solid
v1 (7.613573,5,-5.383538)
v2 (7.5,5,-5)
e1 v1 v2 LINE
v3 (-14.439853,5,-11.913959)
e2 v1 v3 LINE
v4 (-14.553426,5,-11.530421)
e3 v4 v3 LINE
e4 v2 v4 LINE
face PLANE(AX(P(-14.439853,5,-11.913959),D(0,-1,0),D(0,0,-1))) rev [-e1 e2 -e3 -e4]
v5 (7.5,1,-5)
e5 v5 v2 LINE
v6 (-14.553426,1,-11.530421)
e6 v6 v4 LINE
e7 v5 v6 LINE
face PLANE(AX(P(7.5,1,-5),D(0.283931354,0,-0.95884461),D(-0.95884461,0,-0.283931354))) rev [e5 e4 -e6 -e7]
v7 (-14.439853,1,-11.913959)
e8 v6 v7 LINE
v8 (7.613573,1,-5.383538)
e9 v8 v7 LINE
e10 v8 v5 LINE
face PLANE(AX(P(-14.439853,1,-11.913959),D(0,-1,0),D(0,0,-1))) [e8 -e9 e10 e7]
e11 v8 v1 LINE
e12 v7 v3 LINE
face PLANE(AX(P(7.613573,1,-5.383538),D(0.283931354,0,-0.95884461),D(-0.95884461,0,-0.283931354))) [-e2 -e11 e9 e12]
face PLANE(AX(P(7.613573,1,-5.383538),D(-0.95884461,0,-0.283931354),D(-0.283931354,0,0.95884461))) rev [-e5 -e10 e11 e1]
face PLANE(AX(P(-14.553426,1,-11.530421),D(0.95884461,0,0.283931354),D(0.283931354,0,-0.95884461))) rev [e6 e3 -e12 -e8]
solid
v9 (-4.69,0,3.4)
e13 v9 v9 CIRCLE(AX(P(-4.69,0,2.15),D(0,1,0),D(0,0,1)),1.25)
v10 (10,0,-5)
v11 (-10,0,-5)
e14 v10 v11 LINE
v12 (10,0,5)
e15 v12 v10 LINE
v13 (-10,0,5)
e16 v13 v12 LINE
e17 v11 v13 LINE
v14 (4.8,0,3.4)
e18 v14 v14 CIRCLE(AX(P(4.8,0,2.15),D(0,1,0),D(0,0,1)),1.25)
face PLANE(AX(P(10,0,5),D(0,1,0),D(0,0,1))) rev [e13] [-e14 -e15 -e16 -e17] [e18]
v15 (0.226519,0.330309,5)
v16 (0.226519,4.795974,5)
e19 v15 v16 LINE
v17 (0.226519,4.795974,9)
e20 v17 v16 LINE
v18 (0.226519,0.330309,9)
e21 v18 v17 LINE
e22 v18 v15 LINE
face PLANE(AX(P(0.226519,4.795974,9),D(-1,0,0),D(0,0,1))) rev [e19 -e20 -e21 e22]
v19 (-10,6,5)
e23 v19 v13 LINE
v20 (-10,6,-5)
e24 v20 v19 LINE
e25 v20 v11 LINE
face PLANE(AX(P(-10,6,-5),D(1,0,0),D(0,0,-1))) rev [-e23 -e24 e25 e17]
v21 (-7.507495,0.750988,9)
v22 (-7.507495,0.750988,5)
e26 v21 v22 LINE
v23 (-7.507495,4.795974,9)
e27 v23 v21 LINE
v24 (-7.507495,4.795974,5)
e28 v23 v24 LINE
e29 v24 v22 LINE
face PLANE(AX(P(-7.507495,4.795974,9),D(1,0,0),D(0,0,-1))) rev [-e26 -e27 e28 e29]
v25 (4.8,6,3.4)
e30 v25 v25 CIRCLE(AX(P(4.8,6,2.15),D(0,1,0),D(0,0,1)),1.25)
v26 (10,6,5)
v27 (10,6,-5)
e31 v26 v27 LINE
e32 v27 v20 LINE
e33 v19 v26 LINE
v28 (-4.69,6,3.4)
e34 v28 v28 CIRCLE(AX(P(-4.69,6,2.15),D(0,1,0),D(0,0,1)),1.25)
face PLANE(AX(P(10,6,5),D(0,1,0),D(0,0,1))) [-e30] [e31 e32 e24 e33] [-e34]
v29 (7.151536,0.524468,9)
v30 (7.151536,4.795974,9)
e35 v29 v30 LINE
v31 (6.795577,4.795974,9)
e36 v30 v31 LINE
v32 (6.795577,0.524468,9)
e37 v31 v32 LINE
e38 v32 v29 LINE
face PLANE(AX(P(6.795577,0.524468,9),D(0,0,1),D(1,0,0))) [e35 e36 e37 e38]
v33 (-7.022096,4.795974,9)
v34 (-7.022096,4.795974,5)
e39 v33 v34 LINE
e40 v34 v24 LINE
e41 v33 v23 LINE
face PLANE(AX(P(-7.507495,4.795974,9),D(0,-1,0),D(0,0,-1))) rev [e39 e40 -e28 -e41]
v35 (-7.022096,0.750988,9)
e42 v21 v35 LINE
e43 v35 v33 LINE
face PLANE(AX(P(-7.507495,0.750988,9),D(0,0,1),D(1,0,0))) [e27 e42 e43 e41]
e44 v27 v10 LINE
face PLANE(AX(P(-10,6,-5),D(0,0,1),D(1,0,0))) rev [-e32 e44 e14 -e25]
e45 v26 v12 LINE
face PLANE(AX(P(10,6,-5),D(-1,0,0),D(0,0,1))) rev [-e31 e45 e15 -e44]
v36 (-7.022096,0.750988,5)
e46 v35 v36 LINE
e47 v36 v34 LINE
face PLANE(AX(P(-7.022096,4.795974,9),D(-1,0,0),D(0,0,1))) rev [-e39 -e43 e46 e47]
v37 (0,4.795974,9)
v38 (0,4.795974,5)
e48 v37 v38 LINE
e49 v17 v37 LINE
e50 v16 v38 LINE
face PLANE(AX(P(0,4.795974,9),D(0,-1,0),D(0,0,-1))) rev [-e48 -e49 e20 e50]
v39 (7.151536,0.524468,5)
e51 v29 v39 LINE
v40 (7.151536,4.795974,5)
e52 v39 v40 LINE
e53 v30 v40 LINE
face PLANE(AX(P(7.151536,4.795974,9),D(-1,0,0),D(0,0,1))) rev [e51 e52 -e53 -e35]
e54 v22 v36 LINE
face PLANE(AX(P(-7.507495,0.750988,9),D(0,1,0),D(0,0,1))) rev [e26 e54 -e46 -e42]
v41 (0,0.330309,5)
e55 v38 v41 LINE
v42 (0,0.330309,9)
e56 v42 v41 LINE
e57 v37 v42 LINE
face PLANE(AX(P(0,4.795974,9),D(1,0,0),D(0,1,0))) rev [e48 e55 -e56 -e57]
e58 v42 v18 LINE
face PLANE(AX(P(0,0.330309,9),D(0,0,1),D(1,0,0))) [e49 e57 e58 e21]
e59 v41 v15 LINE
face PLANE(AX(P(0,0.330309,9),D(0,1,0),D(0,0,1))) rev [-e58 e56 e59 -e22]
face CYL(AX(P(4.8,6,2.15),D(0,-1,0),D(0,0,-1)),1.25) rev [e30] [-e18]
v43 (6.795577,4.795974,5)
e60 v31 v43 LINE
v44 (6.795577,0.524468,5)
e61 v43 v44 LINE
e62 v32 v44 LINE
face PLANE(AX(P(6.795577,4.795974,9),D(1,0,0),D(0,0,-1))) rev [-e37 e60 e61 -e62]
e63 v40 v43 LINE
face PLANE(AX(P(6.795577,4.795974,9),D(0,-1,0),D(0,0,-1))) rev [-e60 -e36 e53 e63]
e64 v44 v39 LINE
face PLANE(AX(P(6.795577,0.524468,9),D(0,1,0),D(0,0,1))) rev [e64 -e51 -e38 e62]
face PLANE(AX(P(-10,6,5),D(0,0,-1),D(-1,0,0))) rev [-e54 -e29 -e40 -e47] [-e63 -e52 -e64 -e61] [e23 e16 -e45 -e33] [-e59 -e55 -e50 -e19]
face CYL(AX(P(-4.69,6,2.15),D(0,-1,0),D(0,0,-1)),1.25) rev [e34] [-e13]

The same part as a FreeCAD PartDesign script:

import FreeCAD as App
import Part
import Sketcher

V = App.Vector


def add_polygon(sketch, points):
    """Adds a closed chain of lines whose ends are joined by coincident constraints."""
    first, n = sketch.GeometryCount, len(points)
    for a, b in zip(points, points[1:] + points[:1]):
        sketch.addGeometry(Part.LineSegment(App.Vector(*a, 0), App.Vector(*b, 0)), False)
    for i in range(n):
        sketch.addConstraint(Sketcher.Constraint("Coincident", first + i, 2, first + (i + 1) % n, 1))

doc = App.newDocument("Part")
body = doc.addObject("PartDesign::Body", "Body")

sketch1 = doc.addObject("Sketcher::SketchObject", "Sketch")
body.addObject(sketch1)
sketch1.AttachmentSupport = (doc.XZ_Plane, [""])
sketch1.MapMode = "FlatFace"
add_polygon(sketch1, [(-10, -5), (-10, 5), (10, 5), (10, -5)])
sketch1.addGeometry(Part.Circle(V(-4.7, 2.1, 0), V(0, 0, 1), 1.2), False)
sketch1.addGeometry(Part.Circle(V(4.8, 2.1, 0), V(0, 0, 1), 1.2), False)
sketch1.addConstraint(Sketcher.Constraint("Vertical", 0))
sketch1.addConstraint(Sketcher.Constraint("Horizontal", 1))
sketch1.addConstraint(Sketcher.Constraint("Vertical", 2))
sketch1.addConstraint(Sketcher.Constraint("Horizontal", 3))
sketch1.addConstraint(Sketcher.Constraint("Equal", 4, 5))
sketch1.addConstraint(Sketcher.Constraint("Symmetric", 0, 2, 2, 2, -1, 1))
sketch1.addConstraint(Sketcher.Constraint("Horizontal", 4, 3, 5, 3))
sketch1.addConstraint(Sketcher.Constraint("Diameter", 4, 2.5))
sketch1.addConstraint(Sketcher.Constraint("DistanceX", 1, 1, 1, 2, 20.0))
sketch1.addConstraint(Sketcher.Constraint("DistanceY", 0, 1, 0, 2, 10.0))
sketch1.addConstraint(Sketcher.Constraint("DistanceX", -1, 1, 5, 3, 4.8))
sketch1.addConstraint(Sketcher.Constraint("DistanceX", 4, 3, -1, 1, 4.69))
sketch1.addConstraint(Sketcher.Constraint("DistanceY", -1, 1, 4, 3, 2.15))
pad1 = doc.addObject("PartDesign::Pad", "Pad")
body.addObject(pad1)
pad1.Profile = sketch1
pad1.Length = 6
pad1.Reversed = True

sketch2 = doc.addObject("Sketcher::SketchObject", "Sketch001")
body.addObject(sketch2)
sketch2.AttachmentSupport = (doc.XY_Plane, [""])
sketch2.MapMode = "FlatFace"
sketch2.AttachmentOffset = App.Placement(V(0, 0, 5), App.Rotation())
add_polygon(sketch2, [(-7.51, 4.8), (-7.51, 0.75), (-7.02, 0.75), (-7.02, 4.8)])
add_polygon(sketch2, [(0, 4.8), (0, 0.33), (0.23, 0.33), (0.23, 4.8)])
add_polygon(sketch2, [(6.8, 4.8), (6.8, 0.52), (7.15, 0.52), (7.15, 4.8)])
sketch2.addConstraint(Sketcher.Constraint("Vertical", 0))
sketch2.addConstraint(Sketcher.Constraint("Horizontal", 1))
sketch2.addConstraint(Sketcher.Constraint("Vertical", 2))
sketch2.addConstraint(Sketcher.Constraint("Horizontal", 3))
sketch2.addConstraint(Sketcher.Constraint("Vertical", 4))
sketch2.addConstraint(Sketcher.Constraint("Horizontal", 5))
sketch2.addConstraint(Sketcher.Constraint("Vertical", 6))
sketch2.addConstraint(Sketcher.Constraint("Horizontal", 7))
sketch2.addConstraint(Sketcher.Constraint("Vertical", 8))
sketch2.addConstraint(Sketcher.Constraint("Horizontal", 9))
sketch2.addConstraint(Sketcher.Constraint("Vertical", 10))
sketch2.addConstraint(Sketcher.Constraint("Horizontal", 11))
sketch2.addConstraint(Sketcher.Constraint("PointOnObject", 4, 2, -2))
sketch2.addConstraint(Sketcher.Constraint("Horizontal", 3, 2, 6, 2))
sketch2.addConstraint(Sketcher.Constraint("Horizontal", 7, 2, 10, 2))
sketch2.addConstraint(Sketcher.Constraint("DistanceX", 1, 1, 1, 2, 0.485398))
sketch2.addConstraint(Sketcher.Constraint("DistanceX", 5, 1, 5, 2, 0.226519))
sketch2.addConstraint(Sketcher.Constraint("DistanceX", 9, 1, 9, 2, 0.355959))
sketch2.addConstraint(Sketcher.Constraint("DistanceY", 0, 2, 0, 1, 4.044986))
sketch2.addConstraint(Sketcher.Constraint("DistanceY", 4, 2, 4, 1, 4.465665))
sketch2.addConstraint(Sketcher.Constraint("DistanceY", 8, 2, 8, 1, 4.271506))
sketch2.addConstraint(Sketcher.Constraint("DistanceY", -1, 1, 4, 2, 0.330309))
sketch2.addConstraint(Sketcher.Constraint("DistanceX", 0, 2, -1, 1, 7.507495))
sketch2.addConstraint(Sketcher.Constraint("DistanceX", -1, 1, 8, 2, 6.795577))
pad2 = doc.addObject("PartDesign::Pad", "Pad001")
body.addObject(pad2)
pad2.Profile = sketch2
pad2.Length = 4
body2 = doc.addObject("PartDesign::Body", "Body001")

sketch3 = doc.addObject("Sketcher::SketchObject", "Sketch002")
body2.addObject(sketch3)
sketch3.AttachmentSupport = (doc.getObject("XZ_Plane001"), [""])
sketch3.MapMode = "FlatFace"
sketch3.AttachmentOffset = App.Placement(V(0, 0, -5), App.Rotation())
add_polygon(sketch3, [(-14.55, -11.53), (7.5, -5), (7.61, -5.38), (-14.44, -11.91)])
sketch3.addConstraint(Sketcher.Constraint("Perpendicular", 0, 1))
sketch3.addConstraint(Sketcher.Constraint("Perpendicular", 1, 2))
sketch3.addConstraint(Sketcher.Constraint("Perpendicular", 2, 3))
sketch3.addConstraint(Sketcher.Constraint("Distance", 0, 23.0))
sketch3.addConstraint(Sketcher.Constraint("DistanceY", 0, 2, -1, 1, 5.0))
sketch3.addConstraint(Sketcher.Constraint("Distance", 1, 0.4))
sketch3.addConstraint(Sketcher.Constraint("DistanceX", -1, 1, 0, 2, 7.5))
sketch3.addConstraint(Sketcher.Constraint("DistanceX", 3, 2, 1, 2, 22.166999))
pad3 = doc.addObject("PartDesign::Pad", "Pad002")
body2.addObject(pad3)
pad3.Profile = sketch3
pad3.Length = 4

doc.recompute()
